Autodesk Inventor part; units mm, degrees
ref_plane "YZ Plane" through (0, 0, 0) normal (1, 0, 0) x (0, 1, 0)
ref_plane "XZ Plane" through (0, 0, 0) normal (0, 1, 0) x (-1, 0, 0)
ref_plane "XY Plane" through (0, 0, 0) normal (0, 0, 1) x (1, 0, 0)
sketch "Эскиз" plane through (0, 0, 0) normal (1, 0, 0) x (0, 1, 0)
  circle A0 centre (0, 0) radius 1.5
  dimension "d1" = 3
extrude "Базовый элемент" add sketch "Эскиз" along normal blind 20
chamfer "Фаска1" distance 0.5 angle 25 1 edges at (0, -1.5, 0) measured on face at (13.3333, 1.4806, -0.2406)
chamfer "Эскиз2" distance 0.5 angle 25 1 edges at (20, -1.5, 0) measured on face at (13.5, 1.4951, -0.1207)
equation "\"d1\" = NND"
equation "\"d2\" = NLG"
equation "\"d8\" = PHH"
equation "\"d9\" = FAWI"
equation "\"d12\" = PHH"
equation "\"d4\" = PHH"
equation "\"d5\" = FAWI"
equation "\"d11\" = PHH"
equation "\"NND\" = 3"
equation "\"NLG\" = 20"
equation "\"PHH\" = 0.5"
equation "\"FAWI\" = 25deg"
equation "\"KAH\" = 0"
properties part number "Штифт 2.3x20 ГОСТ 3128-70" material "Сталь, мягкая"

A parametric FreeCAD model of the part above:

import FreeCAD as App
import Part
import Sketcher
from FreeCAD import Vector
Q = App.Units.Quantity


def edges_at(feature, points):
    """Names of the edges that pass closest to the given points."""
    edges = feature.Shape.Edges
    near = lambda p: min(range(len(edges)), key=lambda i: edges[i].distToShape(Part.Vertex(*p))[0])
    return sorted({f"Edge{near(p) + 1}" for p in points})

doc = App.newDocument("Part")
params = doc.addObject("Spreadsheet::Sheet", "Params")
for row, (alias, value) in enumerate([
    ("sketch1_diameter", "3 mm"),
    ("pad1_length", "20 mm"),
    ("chamfer_size", "0.5 mm"),
    ("chamfer2_size", "0.5 mm"),
], start=1):
    params.set(f"A{row}", alias)
    params.set(f"B{row}", "=" + value)
    params.setAlias(f"B{row}", alias)

body = doc.addObject("PartDesign::Body", "Body")

# Sketch on YZ plane
sketch1 = doc.addObject("Sketcher::SketchObject", "Sketch")
body.addObject(sketch1)
sketch1.AttachmentSupport = (doc.YZ_Plane, [""])
sketch1.MapMode = "FlatFace"
sketch1.addGeometry(Part.Circle(Vector(0, 0, 0), Vector(0, 0, 1), 1.5), False)
sketch1.addConstraint([
    Sketcher.Constraint("Coincident", 0, 3, -1, 1),
    Sketcher.Constraint("Diameter", 0, Q("3 mm")),
])
sketch1.setExpression("Constraints[1]", "Params.sketch1_diameter")
pad1 = doc.addObject("PartDesign::Pad", "Pad")
body.addObject(pad1)
pad1.Profile = sketch1
pad1.setExpression("Length", "Params.pad1_length")
doc.recompute()

chamfer = doc.addObject("PartDesign::Chamfer", "Chamfer")
body.addObject(chamfer)
chamfer.Base = (pad1, edges_at(pad1, [(0, -1.5, 0)]))
chamfer.ChamferType = "Distance and Angle"
chamfer.setExpression("Size", "Params.chamfer_size")
chamfer.Angle = 25
doc.recompute()

chamfer2 = doc.addObject("PartDesign::Chamfer", "Chamfer001")
body.addObject(chamfer2)
chamfer2.Base = (chamfer, edges_at(chamfer, [(20, -1.5, 0)]))
chamfer2.ChamferType = "Distance and Angle"
chamfer2.setExpression("Size", "Params.chamfer2_size")
chamfer2.Angle = 25

doc.recompute()
